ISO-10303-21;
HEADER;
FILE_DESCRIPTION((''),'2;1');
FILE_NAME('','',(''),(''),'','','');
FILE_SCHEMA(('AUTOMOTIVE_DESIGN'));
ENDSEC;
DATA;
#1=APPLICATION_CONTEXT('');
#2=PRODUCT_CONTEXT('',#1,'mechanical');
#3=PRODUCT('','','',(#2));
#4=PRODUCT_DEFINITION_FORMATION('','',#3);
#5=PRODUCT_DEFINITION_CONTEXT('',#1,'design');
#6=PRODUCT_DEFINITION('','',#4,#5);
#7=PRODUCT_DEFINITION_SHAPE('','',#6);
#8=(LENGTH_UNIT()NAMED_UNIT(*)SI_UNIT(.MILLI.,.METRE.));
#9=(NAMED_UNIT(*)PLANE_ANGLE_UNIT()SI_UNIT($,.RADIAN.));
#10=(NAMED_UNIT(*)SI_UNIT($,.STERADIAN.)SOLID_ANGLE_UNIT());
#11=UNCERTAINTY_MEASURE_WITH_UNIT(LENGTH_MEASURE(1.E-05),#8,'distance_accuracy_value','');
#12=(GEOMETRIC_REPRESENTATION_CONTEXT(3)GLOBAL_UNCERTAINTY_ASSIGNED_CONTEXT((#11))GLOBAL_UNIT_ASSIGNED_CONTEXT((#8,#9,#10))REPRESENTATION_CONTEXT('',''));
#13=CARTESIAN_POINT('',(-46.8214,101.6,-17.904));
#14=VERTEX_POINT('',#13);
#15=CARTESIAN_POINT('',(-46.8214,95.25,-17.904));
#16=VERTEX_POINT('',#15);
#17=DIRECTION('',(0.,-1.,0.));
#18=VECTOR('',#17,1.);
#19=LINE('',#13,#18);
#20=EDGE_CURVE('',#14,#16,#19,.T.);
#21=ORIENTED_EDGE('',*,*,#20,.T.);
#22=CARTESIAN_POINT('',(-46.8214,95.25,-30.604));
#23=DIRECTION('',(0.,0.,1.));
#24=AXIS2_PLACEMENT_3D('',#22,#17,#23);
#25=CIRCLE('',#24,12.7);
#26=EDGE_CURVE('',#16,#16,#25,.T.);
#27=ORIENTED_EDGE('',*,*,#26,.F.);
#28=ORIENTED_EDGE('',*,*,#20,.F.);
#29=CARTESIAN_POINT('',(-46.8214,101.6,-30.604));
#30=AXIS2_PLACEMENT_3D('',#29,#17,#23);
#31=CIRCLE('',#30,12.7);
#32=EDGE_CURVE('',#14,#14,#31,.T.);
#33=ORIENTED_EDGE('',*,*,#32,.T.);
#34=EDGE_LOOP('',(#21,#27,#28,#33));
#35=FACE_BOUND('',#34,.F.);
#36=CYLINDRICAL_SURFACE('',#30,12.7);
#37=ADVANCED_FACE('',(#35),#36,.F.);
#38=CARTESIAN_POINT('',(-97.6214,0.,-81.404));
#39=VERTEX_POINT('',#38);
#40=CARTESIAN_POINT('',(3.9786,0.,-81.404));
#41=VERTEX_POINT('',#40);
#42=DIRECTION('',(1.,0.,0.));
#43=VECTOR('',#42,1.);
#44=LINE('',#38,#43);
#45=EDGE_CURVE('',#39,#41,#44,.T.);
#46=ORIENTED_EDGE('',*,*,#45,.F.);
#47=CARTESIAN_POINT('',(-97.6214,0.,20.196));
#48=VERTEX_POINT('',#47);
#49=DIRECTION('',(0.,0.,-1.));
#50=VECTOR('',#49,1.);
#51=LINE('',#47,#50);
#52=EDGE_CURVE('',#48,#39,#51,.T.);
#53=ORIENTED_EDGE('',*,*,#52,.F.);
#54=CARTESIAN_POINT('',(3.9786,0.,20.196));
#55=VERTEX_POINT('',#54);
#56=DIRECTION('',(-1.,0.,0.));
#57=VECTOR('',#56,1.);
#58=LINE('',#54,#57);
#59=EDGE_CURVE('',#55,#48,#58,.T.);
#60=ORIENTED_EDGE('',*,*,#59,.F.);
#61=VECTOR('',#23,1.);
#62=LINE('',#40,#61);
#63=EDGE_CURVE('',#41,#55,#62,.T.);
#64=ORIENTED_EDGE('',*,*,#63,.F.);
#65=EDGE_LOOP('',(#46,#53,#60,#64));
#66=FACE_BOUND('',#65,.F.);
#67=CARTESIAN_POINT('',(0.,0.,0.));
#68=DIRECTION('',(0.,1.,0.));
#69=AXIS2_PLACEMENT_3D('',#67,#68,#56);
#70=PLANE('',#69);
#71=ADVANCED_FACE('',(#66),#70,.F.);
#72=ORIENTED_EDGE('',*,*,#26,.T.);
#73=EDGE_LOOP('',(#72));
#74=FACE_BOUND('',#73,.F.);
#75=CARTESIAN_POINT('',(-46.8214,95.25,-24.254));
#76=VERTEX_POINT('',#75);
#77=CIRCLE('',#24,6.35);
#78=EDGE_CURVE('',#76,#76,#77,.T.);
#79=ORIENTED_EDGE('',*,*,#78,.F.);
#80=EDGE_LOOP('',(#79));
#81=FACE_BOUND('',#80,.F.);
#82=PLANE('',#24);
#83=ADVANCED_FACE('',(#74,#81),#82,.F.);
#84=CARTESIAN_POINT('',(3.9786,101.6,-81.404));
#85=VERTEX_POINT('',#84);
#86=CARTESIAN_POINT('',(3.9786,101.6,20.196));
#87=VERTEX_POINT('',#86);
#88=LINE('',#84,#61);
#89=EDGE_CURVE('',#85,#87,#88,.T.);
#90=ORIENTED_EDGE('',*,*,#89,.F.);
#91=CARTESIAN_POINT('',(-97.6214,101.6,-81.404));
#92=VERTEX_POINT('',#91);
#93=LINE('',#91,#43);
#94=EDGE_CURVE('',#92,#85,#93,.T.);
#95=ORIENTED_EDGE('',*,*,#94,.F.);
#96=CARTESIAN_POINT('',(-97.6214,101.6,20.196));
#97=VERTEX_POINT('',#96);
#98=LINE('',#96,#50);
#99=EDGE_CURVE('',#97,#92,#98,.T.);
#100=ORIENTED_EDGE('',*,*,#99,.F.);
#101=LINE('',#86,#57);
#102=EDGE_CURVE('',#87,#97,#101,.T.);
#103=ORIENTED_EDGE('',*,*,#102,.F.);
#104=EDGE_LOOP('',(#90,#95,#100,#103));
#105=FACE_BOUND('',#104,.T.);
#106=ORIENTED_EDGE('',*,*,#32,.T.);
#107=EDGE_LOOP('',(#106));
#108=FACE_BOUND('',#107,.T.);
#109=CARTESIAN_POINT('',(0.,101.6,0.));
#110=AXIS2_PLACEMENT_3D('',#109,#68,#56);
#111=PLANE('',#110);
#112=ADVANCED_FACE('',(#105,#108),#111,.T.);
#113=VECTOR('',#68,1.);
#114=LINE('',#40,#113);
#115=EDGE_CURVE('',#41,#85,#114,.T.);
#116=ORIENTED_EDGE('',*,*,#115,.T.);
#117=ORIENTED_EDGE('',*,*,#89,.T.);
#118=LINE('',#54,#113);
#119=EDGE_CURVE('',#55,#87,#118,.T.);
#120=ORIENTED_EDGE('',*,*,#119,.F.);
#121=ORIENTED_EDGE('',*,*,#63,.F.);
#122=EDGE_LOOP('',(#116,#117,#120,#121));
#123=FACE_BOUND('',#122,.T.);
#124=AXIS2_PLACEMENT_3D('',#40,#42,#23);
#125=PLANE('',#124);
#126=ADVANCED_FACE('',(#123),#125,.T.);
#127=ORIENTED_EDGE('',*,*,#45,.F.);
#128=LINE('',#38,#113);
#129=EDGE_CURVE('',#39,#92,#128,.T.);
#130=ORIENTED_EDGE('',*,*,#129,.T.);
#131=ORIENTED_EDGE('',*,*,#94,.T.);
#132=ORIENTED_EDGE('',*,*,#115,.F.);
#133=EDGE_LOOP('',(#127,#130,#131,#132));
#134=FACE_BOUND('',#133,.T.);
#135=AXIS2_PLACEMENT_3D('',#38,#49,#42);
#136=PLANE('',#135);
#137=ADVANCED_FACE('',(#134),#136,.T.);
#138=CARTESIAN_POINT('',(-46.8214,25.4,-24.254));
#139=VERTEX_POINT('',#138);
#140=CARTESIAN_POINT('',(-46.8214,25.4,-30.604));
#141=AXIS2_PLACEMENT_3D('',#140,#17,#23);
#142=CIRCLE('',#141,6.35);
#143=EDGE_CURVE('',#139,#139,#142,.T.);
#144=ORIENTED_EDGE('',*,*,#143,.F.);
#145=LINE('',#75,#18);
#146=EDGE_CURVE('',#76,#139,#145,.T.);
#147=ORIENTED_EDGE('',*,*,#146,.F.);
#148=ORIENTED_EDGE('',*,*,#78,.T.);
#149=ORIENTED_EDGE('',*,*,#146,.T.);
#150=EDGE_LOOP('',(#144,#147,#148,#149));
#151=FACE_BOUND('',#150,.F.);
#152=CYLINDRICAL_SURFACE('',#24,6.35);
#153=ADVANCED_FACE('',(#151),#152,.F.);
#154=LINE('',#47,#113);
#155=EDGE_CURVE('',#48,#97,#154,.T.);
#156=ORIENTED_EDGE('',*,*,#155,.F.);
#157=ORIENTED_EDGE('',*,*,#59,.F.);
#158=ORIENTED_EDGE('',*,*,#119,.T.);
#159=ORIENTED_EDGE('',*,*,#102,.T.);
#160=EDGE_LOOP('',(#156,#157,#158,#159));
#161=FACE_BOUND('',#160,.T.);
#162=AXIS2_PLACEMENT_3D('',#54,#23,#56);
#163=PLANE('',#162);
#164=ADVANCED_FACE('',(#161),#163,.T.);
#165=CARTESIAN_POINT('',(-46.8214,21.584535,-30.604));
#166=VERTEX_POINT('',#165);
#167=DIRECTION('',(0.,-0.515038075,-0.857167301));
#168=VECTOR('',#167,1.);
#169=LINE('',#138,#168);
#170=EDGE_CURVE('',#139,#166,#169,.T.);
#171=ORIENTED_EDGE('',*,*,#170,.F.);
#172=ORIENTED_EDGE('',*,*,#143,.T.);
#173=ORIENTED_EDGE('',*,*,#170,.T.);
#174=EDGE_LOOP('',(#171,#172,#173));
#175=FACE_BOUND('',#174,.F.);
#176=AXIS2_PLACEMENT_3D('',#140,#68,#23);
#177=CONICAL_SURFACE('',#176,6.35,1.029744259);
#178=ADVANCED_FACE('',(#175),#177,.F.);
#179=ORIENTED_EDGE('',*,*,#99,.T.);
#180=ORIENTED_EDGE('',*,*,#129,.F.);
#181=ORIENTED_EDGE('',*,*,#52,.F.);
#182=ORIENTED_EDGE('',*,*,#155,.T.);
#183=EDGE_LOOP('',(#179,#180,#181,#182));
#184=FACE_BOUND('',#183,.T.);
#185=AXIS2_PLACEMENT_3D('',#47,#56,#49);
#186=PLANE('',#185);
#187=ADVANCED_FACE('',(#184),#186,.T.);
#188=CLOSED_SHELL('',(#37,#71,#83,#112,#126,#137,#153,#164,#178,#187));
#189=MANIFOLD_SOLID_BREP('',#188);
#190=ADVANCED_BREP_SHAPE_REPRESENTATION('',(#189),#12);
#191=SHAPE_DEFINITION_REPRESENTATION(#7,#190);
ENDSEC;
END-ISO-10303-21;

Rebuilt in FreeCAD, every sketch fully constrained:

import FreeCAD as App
import Part
import Sketcher
from FreeCAD import Vector
Q = App.Units.Quantity

doc = App.newDocument("Part")
params = doc.addObject("Spreadsheet::Sheet", "Params")
for row, (alias, value) in enumerate([
    ("sketch1_width", "4 in"),
    ("pad1_length", "4 in"),
    ("sketch2_diameter", "0.5 in"),
    ("hole_diameter", "0.5 in"),
    ("hole_depth", "3 in"),
    ("hole_cbore_diameter", "1 in"),
    ("hole_cbore_depth", "0.25 in"),
], start=1):
    params.set(f"A{row}", alias)
    params.set(f"B{row}", "=" + value)
    params.setAlias(f"B{row}", alias)

body = doc.addObject("PartDesign::Body", "Body")

# Sketch on XZ plane
sketch1 = body.newObject("Sketcher::SketchObject", "Sketch")
sketch1.AttachmentSupport = (doc.getObject("XZ_Plane"), [""])
sketch1.MapMode = "FlatFace"
sketch1.addGeometry([
    Part.LineSegment(Vector(-98, 20, 0), Vector(4, 20, 0)),
    Part.LineSegment(Vector(4, 20, 0), Vector(4, -81, 0)),
    Part.LineSegment(Vector(4, -81, 0), Vector(-98, -81, 0)),
    Part.LineSegment(Vector(-98, -81, 0), Vector(-98, 20, 0)),
], False)
sketch1.addConstraint([
    Sketcher.Constraint("Coincident", 0, 2, 1, 1),
    Sketcher.Constraint("Coincident", 1, 2, 2, 1),
    Sketcher.Constraint("Coincident", 2, 2, 3, 1),
    Sketcher.Constraint("Coincident", 3, 2, 0, 1),
    Sketcher.Constraint("Horizontal", 0),
    Sketcher.Constraint("Vertical", 1),
    Sketcher.Constraint("Horizontal", 2),
    Sketcher.Constraint("Vertical", 3),
    Sketcher.Constraint("Equal", 2, 1),
    Sketcher.Constraint("DistanceX", 0, 1, 0, 2, Q("4 in")),
    Sketcher.Constraint("DistanceX", -1, 1, 0, 2, Q("3.9786 mm")),
    Sketcher.Constraint("DistanceY", -1, 1, 0, 2, Q("20.196 mm")),
])
sketch1.setExpression("Constraints[9]", "Params.sketch1_width")
pad1 = body.newObject("PartDesign::Pad", "Pad")
pad1.Profile = sketch1
pad1.setExpression("Length", "Params.pad1_length")
pad1.Reversed = True

# Sketch on XZ plane
sketch2 = body.newObject("Sketcher::SketchObject", "Sketch001")
sketch2.AttachmentSupport = (doc.getObject("XZ_Plane"), [""])
sketch2.MapMode = "FlatFace"
sketch2.AttachmentOffset = App.Placement(Vector(0, 0, -4 * 25.4), App.Rotation())
sketch2.addGeometry(Part.Circle(Vector(-47, -31, 0), Vector(0, 0, 1), 6), False)
sketch2.addConstraint([
    Sketcher.Constraint("Diameter", 0, Q("0.5 in")),
    Sketcher.Constraint("DistanceX", 0, 3, -1, 1, Q("46.8214 mm")),
    Sketcher.Constraint("DistanceY", 0, 3, -1, 1, Q("30.604 mm")),
])
sketch2.setExpression("Constraints[0]", "Params.sketch2_diameter")
doc.recompute()
hole = body.newObject("PartDesign::Hole", "Hole")
hole.Profile = sketch2
hole.ThreadType = "None"
hole.setExpression("Diameter", "Params.hole_diameter")
hole.DepthType = "Dimension"
hole.setExpression("Depth", "Params.hole_depth")
hole.DrillPoint = "Angled"
hole.DrillPointAngle = 118
hole.HoleCutType = "Counterbore"
hole.setExpression("HoleCutDiameter", "Params.hole_cbore_diameter")
hole.setExpression("HoleCutDepth", "Params.hole_cbore_depth")
hole.Reversed = True

doc.recompute()
